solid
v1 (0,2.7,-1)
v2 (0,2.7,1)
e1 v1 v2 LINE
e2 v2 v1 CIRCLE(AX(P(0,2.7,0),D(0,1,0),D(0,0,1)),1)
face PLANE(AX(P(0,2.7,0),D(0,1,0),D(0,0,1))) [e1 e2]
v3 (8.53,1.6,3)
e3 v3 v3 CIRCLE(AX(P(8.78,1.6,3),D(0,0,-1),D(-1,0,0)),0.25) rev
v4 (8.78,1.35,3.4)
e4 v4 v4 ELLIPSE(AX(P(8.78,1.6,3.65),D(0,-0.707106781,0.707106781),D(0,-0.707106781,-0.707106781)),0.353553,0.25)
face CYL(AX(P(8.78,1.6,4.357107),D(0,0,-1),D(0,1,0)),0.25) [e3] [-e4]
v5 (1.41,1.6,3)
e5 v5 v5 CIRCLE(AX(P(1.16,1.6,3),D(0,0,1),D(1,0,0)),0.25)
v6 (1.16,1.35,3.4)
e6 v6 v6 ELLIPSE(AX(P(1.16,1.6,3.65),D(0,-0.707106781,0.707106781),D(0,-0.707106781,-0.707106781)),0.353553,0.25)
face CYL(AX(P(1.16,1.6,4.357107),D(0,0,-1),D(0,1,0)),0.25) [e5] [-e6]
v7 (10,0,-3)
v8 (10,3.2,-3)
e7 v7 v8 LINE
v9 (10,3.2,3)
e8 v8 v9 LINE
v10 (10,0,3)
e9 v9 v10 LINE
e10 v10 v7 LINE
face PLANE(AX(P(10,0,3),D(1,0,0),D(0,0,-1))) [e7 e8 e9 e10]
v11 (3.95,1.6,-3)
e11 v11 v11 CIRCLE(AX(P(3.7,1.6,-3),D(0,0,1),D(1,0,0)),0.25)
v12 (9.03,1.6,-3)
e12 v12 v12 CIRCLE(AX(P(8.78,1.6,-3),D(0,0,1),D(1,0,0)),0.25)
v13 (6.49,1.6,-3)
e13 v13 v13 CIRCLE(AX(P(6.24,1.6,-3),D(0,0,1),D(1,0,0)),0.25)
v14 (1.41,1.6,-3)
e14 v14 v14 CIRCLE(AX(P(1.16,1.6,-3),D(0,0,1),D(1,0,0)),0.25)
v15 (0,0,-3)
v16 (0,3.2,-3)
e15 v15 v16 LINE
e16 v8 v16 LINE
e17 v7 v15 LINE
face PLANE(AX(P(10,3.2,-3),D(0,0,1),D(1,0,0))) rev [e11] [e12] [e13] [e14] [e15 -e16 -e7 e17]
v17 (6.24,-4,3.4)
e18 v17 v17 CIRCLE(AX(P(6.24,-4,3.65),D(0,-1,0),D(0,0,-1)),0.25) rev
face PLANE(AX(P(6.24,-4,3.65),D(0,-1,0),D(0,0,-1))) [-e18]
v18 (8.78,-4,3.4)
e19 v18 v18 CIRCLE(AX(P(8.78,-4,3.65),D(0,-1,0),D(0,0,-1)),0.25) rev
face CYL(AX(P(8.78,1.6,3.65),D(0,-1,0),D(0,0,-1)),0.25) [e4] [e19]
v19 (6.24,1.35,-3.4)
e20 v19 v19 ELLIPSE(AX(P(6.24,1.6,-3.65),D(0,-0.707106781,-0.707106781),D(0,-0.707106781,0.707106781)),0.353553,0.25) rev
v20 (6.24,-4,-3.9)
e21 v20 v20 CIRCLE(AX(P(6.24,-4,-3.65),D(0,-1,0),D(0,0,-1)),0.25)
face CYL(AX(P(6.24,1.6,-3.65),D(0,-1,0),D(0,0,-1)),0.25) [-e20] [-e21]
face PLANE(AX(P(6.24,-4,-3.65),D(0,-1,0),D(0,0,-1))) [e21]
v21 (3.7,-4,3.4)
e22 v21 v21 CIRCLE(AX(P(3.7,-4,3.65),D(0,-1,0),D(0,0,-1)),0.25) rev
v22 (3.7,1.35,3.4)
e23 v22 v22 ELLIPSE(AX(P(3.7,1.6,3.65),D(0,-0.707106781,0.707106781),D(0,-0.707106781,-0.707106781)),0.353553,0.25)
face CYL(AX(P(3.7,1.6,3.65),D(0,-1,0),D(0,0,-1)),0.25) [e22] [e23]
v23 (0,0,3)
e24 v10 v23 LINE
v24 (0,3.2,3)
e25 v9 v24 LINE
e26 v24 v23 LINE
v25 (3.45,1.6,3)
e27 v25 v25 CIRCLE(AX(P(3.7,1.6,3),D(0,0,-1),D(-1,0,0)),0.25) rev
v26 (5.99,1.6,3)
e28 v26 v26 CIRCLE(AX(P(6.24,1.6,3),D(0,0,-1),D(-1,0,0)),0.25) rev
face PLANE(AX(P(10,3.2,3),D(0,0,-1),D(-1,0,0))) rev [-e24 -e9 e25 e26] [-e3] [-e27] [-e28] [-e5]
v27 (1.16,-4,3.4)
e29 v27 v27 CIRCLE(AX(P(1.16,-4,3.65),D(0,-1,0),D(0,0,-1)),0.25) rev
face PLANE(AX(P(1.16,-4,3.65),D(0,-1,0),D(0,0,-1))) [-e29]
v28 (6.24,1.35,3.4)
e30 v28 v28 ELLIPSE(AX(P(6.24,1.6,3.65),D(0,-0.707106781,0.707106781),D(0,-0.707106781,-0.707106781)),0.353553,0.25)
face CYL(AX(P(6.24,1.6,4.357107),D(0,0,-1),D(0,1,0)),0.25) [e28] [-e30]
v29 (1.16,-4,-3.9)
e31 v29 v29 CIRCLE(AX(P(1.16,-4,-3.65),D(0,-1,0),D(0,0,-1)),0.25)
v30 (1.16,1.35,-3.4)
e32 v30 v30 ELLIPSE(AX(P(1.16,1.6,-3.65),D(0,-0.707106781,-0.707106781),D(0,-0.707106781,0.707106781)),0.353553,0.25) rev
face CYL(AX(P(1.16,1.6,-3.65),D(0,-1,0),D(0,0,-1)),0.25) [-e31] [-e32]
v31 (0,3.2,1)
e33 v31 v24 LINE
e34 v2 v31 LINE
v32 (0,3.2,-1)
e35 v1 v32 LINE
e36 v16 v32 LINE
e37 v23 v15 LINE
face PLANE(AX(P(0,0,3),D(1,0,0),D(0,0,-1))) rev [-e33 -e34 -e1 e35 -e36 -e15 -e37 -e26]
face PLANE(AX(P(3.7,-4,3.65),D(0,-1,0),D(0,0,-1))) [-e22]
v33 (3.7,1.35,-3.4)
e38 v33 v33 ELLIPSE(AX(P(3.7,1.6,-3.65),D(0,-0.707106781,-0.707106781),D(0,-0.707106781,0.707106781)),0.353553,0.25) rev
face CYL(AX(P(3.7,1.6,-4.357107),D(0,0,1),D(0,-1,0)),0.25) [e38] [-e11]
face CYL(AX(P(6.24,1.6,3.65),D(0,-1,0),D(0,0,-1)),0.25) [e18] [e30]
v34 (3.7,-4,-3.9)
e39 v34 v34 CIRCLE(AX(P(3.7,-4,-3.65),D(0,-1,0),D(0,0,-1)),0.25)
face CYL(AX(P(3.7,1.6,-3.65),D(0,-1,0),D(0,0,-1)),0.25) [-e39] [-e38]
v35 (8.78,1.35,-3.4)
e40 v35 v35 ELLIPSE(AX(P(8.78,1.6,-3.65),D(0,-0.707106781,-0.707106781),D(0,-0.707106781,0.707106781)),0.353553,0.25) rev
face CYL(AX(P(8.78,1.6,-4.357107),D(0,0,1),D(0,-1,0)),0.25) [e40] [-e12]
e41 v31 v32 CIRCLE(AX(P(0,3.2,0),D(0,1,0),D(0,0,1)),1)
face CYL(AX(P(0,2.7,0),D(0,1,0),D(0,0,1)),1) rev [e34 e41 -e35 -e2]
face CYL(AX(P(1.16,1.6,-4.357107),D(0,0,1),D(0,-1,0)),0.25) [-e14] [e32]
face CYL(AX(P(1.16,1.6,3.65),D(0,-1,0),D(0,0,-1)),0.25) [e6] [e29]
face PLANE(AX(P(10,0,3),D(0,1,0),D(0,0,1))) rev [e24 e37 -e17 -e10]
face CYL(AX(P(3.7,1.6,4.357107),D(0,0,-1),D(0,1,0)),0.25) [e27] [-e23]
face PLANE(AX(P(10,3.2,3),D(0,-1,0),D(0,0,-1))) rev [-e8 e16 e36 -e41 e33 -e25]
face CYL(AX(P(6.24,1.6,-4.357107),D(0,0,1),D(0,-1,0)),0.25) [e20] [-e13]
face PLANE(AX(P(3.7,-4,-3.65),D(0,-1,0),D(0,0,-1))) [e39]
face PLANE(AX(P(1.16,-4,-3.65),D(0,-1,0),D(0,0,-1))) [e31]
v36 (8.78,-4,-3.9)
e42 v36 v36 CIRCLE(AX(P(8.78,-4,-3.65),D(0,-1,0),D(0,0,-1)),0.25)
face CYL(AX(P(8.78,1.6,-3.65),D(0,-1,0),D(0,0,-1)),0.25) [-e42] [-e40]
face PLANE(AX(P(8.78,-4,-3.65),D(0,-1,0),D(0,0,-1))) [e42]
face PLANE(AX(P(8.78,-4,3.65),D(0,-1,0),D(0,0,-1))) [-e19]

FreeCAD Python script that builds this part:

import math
import FreeCAD as App
import Part
import Sketcher
from FreeCAD import Vector
Q = App.Units.Quantity


def add_polygon(sketch, points):
    """Adds a closed chain of lines whose ends are joined by coincident constraints."""
    first, n = sketch.GeometryCount, len(points)
    for a, b in zip(points, points[1:] + points[:1]):
        sketch.addGeometry(Part.LineSegment(App.Vector(*a, 0), App.Vector(*b, 0)), False)
    for i in range(n):
        sketch.addConstraint(Sketcher.Constraint("Coincident", first + i, 2, first + (i + 1) % n, 1))

doc = App.newDocument("Part")
body = doc.addObject("PartDesign::Body", "Body")

sketch1 = body.newObject("Sketcher::SketchObject", "Sketch")
sketch1.AttachmentSupport = (doc.getObject("YZ_Plane"), [""])
sketch1.MapMode = "FlatFace"
add_polygon(sketch1, [(3.2, 3), (0, 3), (0, -3), (3.2, -3)])
sketch1.addConstraint([
    Sketcher.Constraint("Horizontal", 0),
    Sketcher.Constraint("Vertical", 1),
    Sketcher.Constraint("Horizontal", 2),
    Sketcher.Constraint("Vertical", 3),
    Sketcher.Constraint("Symmetric", 0, 2, 1, 2, -1, 1),
    Sketcher.Constraint("DistanceY", 1, 2, 1, 1, Q("6 mm")),
    Sketcher.Constraint("DistanceX", 0, 2, 0, 1, Q("3.2 mm")),
])
pad1 = body.newObject("PartDesign::Pad", "Pad")
pad1.Profile = sketch1
pad1.Length = 10

sketch2 = body.newObject("Sketcher::SketchObject", "Sketch001")
sketch2.AttachmentSupport = (doc.getObject("XZ_Plane"), [""])
sketch2.MapMode = "FlatFace"
sketch2.AttachmentOffset = App.Placement(Vector(0, 0, -3.2), App.Rotation())
sketch2.addGeometry([
    Part.LineSegment(Vector(0, -1, 0), Vector(0, 1, 0)),
    Part.ArcOfCircle(Part.Circle(Vector(0, 0, 0), Vector(0, 0, 1), 1), math.radians(-90), math.radians(90)),
], False)
sketch2.addConstraint([
    Sketcher.Constraint("Coincident", 0, 1, 1, 1),
    Sketcher.Constraint("Coincident", 1, 2, 0, 2),
    Sketcher.Constraint("Vertical", 0),
    Sketcher.Constraint("Coincident", 1, 3, -1, 1),
    Sketcher.Constraint("PointOnObject", 0, 1, -2),
    Sketcher.Constraint("Radius", 1, Q("1 mm")),
])
pocket1 = body.newObject("PartDesign::Pocket", "Pocket")
pocket1.Profile = sketch2
pocket1.Length = 0.5
pocket1.Reversed = True

sketch3 = body.newObject("Sketcher::SketchObject", "Sketch002")
sketch3.AttachmentSupport = (doc.getObject("XY_Plane"), [""])
sketch3.MapMode = "FlatFace"
sketch3.AttachmentOffset = App.Placement(Vector(0, 0, 3), App.Rotation())
sketch3.addGeometry(Part.Circle(Vector(1.16, 1.6, 0), Vector(0, 0, 1), 0.25), False)
sketch3.addConstraint([
    Sketcher.Constraint("Diameter", 0, Q("0.5 mm")),
    Sketcher.Constraint("DistanceY", -1, 1, 0, 3, Q("1.6 mm")),
    Sketcher.Constraint("DistanceX", -1, 1, 0, 3, Q("1.16 mm")),
])

sketch4 = body.newObject("Sketcher::SketchObject", "Sketch003")
sketch4.AttachmentSupport = (doc.getObject("YZ_Plane"), [""])
sketch4.MapMode = "FlatFace"
sketch4.AttachmentOffset = App.Placement(Vector(0, 0, 1.16), App.Rotation())
sketch4.addGeometry([
    Part.LineSegment(Vector(1.6, 3, 0), Vector(1.6, 3.6, 0)),
    Part.LineSegment(Vector(1.6, 3.6, 0), Vector(-4, 3.6, 0)),
], False)
sketch4.addConstraint([
    Sketcher.Constraint("Coincident", 0, 2, 1, 1),
    Sketcher.Constraint("Vertical", 0),
    Sketcher.Constraint("Horizontal", 1),
    Sketcher.Constraint("DistanceX", 1, 2, 1, 1, Q("5.6 mm")),
    Sketcher.Constraint("DistanceY", -1, 1, 0, 1, Q("3 mm")),
    Sketcher.Constraint("DistanceX", 1, 2, -1, 1, Q("4 mm")),
    Sketcher.Constraint("DistanceY", 0, 1, 0, 2, Q("0.65 mm")),
])
doc.recompute()

additivepipe = body.newObject("PartDesign::AdditivePipe", "AdditivePipe")
additivepipe.Profile = sketch3
additivepipe.Spine = (sketch4, ["Edge1", "Edge2"])
additivepipe.Transition = "Right corner"
doc.recompute()

mirrored = body.newObject("PartDesign::Mirrored", "Mirrored")
mirrored.Originals = [additivepipe]
mirrored.MirrorPlane = (doc.getObject("XY_Plane"), [""])
body.Tip = mirrored
doc.recompute()

linearpattern = body.newObject("PartDesign::LinearPattern", "LinearPattern")
linearpattern.Originals = [additivepipe]
linearpattern.Direction = (doc.getObject("X_Axis"), [""])
linearpattern.Mode = "offset"
linearpattern.Offset = 2.54
linearpattern.Occurrences = 4
body.Tip = linearpattern

sketch5 = body.newObject("Sketcher::SketchObject", "Sketch004")
sketch5.AttachmentSupport = (doc.getObject("XY_Plane"), [""])
sketch5.MapMode = "FlatFace"
sketch5.AttachmentOffset = App.Placement(Vector(0, 0, -3), App.Rotation())
sketch5.addGeometry(Part.Circle(Vector(3.7, 1.6, 0), Vector(0, 0, 1), 0.25), False)
sketch5.addConstraint([
    Sketcher.Constraint("Diameter", 0, Q("0.5 mm")),
    Sketcher.Constraint("DistanceX", -1, 1, 0, 3, Q("3.7 mm")),
    Sketcher.Constraint("DistanceY", -1, 1, 0, 3, Q("1.6 mm")),
])

sketch6 = body.newObject("Sketcher::SketchObject", "Sketch005")
sketch6.AttachmentSupport = (doc.getObject("YZ_Plane"), [""])
sketch6.MapMode = "FlatFace"
sketch6.AttachmentOffset = App.Placement(Vector(0, 0, 3.7), App.Rotation())
sketch6.addGeometry([
    Part.LineSegment(Vector(1.6, -3, 0), Vector(1.6, -3.6, 0)),
    Part.LineSegment(Vector(1.6, -3.6, 0), Vector(-4, -3.6, 0)),
], False)
sketch6.addConstraint([
    Sketcher.Constraint("Coincident", 0, 2, 1, 1),
    Sketcher.Constraint("Vertical", 0),
    Sketcher.Constraint("Horizontal", 1),
    Sketcher.Constraint("DistanceX", 1, 2, 1, 1, Q("5.6 mm")),
    Sketcher.Constraint("DistanceY", 0, 1, -1, 1, Q("3 mm")),
    Sketcher.Constraint("DistanceX", 1, 2, -1, 1, Q("4 mm")),
    Sketcher.Constraint("DistanceY", 0, 2, 0, 1, Q("0.65 mm")),
])
doc.recompute()

additivepipe2 = body.newObject("PartDesign::AdditivePipe", "AdditivePipe001")
additivepipe2.Profile = sketch5
additivepipe2.Spine = (sketch6, ["Edge1", "Edge2"])
additivepipe2.Transition = "Right corner"

sketch7 = body.newObject("Sketcher::SketchObject", "Sketch006")
sketch7.AttachmentSupport = (doc.getObject("XY_Plane"), [""])
sketch7.MapMode = "FlatFace"
sketch7.AttachmentOffset = App.Placement(Vector(0, 0, -3), App.Rotation())
sketch7.addGeometry(Part.Circle(Vector(6.24, 1.6, 0), Vector(0, 0, 1), 0.25), False)
sketch7.addConstraint([
    Sketcher.Constraint("Diameter", 0, Q("0.5 mm")),
    Sketcher.Constraint("DistanceY", -1, 1, 0, 3, Q("1.6 mm")),
    Sketcher.Constraint("DistanceX", -1, 1, 0, 3, Q("6.24 mm")),
])

sketch8 = body.newObject("Sketcher::SketchObject", "Sketch007")
sketch8.AttachmentSupport = (doc.getObject("YZ_Plane"), [""])
sketch8.MapMode = "FlatFace"
sketch8.AttachmentOffset = App.Placement(Vector(0, 0, 6.24), App.Rotation())
sketch8.addGeometry([
    Part.LineSegment(Vector(1.6, -3, 0), Vector(1.6, -3.6, 0)),
    Part.LineSegment(Vector(1.6, -3.6, 0), Vector(-4, -3.6, 0)),
], False)
sketch8.addConstraint([
    Sketcher.Constraint("Coincident", 0, 2, 1, 1),
    Sketcher.Constraint("Vertical", 0),
    Sketcher.Constraint("Horizontal", 1),
    Sketcher.Constraint("DistanceX", 1, 2, 1, 1, Q("5.6 mm")),
    Sketcher.Constraint("DistanceY", 0, 1, -1, 1, Q("3 mm")),
    Sketcher.Constraint("DistanceX", 1, 2, -1, 1, Q("4 mm")),
    Sketcher.Constraint("DistanceY", 0, 2, 0, 1, Q("0.65 mm")),
])
doc.recompute()

additivepipe3 = body.newObject("PartDesign::AdditivePipe", "AdditivePipe002")
additivepipe3.Profile = sketch7
additivepipe3.Spine = (sketch8, ["Edge1", "Edge2"])
additivepipe3.Transition = "Right corner"

sketch9 = body.newObject("Sketcher::SketchObject", "Sketch008")
sketch9.AttachmentSupport = (doc.getObject("XY_Plane"), [""])
sketch9.MapMode = "FlatFace"
sketch9.AttachmentOffset = App.Placement(Vector(0, 0, -3), App.Rotation())
sketch9.addGeometry(Part.Circle(Vector(8.78, 1.6, 0), Vector(0, 0, 1), 0.25), False)
sketch9.addConstraint([
    Sketcher.Constraint("Diameter", 0, Q("0.5 mm")),
    Sketcher.Constraint("DistanceY", -1, 1, 0, 3, Q("1.6 mm")),
    Sketcher.Constraint("DistanceX", -1, 1, 0, 3, Q("8.78 mm")),
])

sketch10 = body.newObject("Sketcher::SketchObject", "Sketch009")
sketch10.AttachmentSupport = (doc.getObject("YZ_Plane"), [""])
sketch10.MapMode = "FlatFace"
sketch10.AttachmentOffset = App.Placement(Vector(0, 0, 8.78), App.Rotation())
sketch10.addGeometry([
    Part.LineSegment(Vector(1.6, -3, 0), Vector(1.6, -3.6, 0)),
    Part.LineSegment(Vector(1.6, -3.6, 0), Vector(-4, -3.6, 0)),
], False)
sketch10.addConstraint([
    Sketcher.Constraint("Coincident", 0, 2, 1, 1),
    Sketcher.Constraint("Vertical", 0),
    Sketcher.Constraint("Horizontal", 1),
    Sketcher.Constraint("DistanceX", 1, 2, 1, 1, Q("5.6 mm")),
    Sketcher.Constraint("DistanceY", 0, 1, -1, 1, Q("3 mm")),
    Sketcher.Constraint("DistanceX", 1, 2, -1, 1, Q("4 mm")),
    Sketcher.Constraint("DistanceY", 0, 2, 0, 1, Q("0.65 mm")),
])
doc.recompute()

additivepipe4 = body.newObject("PartDesign::AdditivePipe", "AdditivePipe003")
additivepipe4.Profile = sketch9
additivepipe4.Spine = (sketch10, ["Edge1", "Edge2"])
additivepipe4.Transition = "Right corner"

doc.recompute()
